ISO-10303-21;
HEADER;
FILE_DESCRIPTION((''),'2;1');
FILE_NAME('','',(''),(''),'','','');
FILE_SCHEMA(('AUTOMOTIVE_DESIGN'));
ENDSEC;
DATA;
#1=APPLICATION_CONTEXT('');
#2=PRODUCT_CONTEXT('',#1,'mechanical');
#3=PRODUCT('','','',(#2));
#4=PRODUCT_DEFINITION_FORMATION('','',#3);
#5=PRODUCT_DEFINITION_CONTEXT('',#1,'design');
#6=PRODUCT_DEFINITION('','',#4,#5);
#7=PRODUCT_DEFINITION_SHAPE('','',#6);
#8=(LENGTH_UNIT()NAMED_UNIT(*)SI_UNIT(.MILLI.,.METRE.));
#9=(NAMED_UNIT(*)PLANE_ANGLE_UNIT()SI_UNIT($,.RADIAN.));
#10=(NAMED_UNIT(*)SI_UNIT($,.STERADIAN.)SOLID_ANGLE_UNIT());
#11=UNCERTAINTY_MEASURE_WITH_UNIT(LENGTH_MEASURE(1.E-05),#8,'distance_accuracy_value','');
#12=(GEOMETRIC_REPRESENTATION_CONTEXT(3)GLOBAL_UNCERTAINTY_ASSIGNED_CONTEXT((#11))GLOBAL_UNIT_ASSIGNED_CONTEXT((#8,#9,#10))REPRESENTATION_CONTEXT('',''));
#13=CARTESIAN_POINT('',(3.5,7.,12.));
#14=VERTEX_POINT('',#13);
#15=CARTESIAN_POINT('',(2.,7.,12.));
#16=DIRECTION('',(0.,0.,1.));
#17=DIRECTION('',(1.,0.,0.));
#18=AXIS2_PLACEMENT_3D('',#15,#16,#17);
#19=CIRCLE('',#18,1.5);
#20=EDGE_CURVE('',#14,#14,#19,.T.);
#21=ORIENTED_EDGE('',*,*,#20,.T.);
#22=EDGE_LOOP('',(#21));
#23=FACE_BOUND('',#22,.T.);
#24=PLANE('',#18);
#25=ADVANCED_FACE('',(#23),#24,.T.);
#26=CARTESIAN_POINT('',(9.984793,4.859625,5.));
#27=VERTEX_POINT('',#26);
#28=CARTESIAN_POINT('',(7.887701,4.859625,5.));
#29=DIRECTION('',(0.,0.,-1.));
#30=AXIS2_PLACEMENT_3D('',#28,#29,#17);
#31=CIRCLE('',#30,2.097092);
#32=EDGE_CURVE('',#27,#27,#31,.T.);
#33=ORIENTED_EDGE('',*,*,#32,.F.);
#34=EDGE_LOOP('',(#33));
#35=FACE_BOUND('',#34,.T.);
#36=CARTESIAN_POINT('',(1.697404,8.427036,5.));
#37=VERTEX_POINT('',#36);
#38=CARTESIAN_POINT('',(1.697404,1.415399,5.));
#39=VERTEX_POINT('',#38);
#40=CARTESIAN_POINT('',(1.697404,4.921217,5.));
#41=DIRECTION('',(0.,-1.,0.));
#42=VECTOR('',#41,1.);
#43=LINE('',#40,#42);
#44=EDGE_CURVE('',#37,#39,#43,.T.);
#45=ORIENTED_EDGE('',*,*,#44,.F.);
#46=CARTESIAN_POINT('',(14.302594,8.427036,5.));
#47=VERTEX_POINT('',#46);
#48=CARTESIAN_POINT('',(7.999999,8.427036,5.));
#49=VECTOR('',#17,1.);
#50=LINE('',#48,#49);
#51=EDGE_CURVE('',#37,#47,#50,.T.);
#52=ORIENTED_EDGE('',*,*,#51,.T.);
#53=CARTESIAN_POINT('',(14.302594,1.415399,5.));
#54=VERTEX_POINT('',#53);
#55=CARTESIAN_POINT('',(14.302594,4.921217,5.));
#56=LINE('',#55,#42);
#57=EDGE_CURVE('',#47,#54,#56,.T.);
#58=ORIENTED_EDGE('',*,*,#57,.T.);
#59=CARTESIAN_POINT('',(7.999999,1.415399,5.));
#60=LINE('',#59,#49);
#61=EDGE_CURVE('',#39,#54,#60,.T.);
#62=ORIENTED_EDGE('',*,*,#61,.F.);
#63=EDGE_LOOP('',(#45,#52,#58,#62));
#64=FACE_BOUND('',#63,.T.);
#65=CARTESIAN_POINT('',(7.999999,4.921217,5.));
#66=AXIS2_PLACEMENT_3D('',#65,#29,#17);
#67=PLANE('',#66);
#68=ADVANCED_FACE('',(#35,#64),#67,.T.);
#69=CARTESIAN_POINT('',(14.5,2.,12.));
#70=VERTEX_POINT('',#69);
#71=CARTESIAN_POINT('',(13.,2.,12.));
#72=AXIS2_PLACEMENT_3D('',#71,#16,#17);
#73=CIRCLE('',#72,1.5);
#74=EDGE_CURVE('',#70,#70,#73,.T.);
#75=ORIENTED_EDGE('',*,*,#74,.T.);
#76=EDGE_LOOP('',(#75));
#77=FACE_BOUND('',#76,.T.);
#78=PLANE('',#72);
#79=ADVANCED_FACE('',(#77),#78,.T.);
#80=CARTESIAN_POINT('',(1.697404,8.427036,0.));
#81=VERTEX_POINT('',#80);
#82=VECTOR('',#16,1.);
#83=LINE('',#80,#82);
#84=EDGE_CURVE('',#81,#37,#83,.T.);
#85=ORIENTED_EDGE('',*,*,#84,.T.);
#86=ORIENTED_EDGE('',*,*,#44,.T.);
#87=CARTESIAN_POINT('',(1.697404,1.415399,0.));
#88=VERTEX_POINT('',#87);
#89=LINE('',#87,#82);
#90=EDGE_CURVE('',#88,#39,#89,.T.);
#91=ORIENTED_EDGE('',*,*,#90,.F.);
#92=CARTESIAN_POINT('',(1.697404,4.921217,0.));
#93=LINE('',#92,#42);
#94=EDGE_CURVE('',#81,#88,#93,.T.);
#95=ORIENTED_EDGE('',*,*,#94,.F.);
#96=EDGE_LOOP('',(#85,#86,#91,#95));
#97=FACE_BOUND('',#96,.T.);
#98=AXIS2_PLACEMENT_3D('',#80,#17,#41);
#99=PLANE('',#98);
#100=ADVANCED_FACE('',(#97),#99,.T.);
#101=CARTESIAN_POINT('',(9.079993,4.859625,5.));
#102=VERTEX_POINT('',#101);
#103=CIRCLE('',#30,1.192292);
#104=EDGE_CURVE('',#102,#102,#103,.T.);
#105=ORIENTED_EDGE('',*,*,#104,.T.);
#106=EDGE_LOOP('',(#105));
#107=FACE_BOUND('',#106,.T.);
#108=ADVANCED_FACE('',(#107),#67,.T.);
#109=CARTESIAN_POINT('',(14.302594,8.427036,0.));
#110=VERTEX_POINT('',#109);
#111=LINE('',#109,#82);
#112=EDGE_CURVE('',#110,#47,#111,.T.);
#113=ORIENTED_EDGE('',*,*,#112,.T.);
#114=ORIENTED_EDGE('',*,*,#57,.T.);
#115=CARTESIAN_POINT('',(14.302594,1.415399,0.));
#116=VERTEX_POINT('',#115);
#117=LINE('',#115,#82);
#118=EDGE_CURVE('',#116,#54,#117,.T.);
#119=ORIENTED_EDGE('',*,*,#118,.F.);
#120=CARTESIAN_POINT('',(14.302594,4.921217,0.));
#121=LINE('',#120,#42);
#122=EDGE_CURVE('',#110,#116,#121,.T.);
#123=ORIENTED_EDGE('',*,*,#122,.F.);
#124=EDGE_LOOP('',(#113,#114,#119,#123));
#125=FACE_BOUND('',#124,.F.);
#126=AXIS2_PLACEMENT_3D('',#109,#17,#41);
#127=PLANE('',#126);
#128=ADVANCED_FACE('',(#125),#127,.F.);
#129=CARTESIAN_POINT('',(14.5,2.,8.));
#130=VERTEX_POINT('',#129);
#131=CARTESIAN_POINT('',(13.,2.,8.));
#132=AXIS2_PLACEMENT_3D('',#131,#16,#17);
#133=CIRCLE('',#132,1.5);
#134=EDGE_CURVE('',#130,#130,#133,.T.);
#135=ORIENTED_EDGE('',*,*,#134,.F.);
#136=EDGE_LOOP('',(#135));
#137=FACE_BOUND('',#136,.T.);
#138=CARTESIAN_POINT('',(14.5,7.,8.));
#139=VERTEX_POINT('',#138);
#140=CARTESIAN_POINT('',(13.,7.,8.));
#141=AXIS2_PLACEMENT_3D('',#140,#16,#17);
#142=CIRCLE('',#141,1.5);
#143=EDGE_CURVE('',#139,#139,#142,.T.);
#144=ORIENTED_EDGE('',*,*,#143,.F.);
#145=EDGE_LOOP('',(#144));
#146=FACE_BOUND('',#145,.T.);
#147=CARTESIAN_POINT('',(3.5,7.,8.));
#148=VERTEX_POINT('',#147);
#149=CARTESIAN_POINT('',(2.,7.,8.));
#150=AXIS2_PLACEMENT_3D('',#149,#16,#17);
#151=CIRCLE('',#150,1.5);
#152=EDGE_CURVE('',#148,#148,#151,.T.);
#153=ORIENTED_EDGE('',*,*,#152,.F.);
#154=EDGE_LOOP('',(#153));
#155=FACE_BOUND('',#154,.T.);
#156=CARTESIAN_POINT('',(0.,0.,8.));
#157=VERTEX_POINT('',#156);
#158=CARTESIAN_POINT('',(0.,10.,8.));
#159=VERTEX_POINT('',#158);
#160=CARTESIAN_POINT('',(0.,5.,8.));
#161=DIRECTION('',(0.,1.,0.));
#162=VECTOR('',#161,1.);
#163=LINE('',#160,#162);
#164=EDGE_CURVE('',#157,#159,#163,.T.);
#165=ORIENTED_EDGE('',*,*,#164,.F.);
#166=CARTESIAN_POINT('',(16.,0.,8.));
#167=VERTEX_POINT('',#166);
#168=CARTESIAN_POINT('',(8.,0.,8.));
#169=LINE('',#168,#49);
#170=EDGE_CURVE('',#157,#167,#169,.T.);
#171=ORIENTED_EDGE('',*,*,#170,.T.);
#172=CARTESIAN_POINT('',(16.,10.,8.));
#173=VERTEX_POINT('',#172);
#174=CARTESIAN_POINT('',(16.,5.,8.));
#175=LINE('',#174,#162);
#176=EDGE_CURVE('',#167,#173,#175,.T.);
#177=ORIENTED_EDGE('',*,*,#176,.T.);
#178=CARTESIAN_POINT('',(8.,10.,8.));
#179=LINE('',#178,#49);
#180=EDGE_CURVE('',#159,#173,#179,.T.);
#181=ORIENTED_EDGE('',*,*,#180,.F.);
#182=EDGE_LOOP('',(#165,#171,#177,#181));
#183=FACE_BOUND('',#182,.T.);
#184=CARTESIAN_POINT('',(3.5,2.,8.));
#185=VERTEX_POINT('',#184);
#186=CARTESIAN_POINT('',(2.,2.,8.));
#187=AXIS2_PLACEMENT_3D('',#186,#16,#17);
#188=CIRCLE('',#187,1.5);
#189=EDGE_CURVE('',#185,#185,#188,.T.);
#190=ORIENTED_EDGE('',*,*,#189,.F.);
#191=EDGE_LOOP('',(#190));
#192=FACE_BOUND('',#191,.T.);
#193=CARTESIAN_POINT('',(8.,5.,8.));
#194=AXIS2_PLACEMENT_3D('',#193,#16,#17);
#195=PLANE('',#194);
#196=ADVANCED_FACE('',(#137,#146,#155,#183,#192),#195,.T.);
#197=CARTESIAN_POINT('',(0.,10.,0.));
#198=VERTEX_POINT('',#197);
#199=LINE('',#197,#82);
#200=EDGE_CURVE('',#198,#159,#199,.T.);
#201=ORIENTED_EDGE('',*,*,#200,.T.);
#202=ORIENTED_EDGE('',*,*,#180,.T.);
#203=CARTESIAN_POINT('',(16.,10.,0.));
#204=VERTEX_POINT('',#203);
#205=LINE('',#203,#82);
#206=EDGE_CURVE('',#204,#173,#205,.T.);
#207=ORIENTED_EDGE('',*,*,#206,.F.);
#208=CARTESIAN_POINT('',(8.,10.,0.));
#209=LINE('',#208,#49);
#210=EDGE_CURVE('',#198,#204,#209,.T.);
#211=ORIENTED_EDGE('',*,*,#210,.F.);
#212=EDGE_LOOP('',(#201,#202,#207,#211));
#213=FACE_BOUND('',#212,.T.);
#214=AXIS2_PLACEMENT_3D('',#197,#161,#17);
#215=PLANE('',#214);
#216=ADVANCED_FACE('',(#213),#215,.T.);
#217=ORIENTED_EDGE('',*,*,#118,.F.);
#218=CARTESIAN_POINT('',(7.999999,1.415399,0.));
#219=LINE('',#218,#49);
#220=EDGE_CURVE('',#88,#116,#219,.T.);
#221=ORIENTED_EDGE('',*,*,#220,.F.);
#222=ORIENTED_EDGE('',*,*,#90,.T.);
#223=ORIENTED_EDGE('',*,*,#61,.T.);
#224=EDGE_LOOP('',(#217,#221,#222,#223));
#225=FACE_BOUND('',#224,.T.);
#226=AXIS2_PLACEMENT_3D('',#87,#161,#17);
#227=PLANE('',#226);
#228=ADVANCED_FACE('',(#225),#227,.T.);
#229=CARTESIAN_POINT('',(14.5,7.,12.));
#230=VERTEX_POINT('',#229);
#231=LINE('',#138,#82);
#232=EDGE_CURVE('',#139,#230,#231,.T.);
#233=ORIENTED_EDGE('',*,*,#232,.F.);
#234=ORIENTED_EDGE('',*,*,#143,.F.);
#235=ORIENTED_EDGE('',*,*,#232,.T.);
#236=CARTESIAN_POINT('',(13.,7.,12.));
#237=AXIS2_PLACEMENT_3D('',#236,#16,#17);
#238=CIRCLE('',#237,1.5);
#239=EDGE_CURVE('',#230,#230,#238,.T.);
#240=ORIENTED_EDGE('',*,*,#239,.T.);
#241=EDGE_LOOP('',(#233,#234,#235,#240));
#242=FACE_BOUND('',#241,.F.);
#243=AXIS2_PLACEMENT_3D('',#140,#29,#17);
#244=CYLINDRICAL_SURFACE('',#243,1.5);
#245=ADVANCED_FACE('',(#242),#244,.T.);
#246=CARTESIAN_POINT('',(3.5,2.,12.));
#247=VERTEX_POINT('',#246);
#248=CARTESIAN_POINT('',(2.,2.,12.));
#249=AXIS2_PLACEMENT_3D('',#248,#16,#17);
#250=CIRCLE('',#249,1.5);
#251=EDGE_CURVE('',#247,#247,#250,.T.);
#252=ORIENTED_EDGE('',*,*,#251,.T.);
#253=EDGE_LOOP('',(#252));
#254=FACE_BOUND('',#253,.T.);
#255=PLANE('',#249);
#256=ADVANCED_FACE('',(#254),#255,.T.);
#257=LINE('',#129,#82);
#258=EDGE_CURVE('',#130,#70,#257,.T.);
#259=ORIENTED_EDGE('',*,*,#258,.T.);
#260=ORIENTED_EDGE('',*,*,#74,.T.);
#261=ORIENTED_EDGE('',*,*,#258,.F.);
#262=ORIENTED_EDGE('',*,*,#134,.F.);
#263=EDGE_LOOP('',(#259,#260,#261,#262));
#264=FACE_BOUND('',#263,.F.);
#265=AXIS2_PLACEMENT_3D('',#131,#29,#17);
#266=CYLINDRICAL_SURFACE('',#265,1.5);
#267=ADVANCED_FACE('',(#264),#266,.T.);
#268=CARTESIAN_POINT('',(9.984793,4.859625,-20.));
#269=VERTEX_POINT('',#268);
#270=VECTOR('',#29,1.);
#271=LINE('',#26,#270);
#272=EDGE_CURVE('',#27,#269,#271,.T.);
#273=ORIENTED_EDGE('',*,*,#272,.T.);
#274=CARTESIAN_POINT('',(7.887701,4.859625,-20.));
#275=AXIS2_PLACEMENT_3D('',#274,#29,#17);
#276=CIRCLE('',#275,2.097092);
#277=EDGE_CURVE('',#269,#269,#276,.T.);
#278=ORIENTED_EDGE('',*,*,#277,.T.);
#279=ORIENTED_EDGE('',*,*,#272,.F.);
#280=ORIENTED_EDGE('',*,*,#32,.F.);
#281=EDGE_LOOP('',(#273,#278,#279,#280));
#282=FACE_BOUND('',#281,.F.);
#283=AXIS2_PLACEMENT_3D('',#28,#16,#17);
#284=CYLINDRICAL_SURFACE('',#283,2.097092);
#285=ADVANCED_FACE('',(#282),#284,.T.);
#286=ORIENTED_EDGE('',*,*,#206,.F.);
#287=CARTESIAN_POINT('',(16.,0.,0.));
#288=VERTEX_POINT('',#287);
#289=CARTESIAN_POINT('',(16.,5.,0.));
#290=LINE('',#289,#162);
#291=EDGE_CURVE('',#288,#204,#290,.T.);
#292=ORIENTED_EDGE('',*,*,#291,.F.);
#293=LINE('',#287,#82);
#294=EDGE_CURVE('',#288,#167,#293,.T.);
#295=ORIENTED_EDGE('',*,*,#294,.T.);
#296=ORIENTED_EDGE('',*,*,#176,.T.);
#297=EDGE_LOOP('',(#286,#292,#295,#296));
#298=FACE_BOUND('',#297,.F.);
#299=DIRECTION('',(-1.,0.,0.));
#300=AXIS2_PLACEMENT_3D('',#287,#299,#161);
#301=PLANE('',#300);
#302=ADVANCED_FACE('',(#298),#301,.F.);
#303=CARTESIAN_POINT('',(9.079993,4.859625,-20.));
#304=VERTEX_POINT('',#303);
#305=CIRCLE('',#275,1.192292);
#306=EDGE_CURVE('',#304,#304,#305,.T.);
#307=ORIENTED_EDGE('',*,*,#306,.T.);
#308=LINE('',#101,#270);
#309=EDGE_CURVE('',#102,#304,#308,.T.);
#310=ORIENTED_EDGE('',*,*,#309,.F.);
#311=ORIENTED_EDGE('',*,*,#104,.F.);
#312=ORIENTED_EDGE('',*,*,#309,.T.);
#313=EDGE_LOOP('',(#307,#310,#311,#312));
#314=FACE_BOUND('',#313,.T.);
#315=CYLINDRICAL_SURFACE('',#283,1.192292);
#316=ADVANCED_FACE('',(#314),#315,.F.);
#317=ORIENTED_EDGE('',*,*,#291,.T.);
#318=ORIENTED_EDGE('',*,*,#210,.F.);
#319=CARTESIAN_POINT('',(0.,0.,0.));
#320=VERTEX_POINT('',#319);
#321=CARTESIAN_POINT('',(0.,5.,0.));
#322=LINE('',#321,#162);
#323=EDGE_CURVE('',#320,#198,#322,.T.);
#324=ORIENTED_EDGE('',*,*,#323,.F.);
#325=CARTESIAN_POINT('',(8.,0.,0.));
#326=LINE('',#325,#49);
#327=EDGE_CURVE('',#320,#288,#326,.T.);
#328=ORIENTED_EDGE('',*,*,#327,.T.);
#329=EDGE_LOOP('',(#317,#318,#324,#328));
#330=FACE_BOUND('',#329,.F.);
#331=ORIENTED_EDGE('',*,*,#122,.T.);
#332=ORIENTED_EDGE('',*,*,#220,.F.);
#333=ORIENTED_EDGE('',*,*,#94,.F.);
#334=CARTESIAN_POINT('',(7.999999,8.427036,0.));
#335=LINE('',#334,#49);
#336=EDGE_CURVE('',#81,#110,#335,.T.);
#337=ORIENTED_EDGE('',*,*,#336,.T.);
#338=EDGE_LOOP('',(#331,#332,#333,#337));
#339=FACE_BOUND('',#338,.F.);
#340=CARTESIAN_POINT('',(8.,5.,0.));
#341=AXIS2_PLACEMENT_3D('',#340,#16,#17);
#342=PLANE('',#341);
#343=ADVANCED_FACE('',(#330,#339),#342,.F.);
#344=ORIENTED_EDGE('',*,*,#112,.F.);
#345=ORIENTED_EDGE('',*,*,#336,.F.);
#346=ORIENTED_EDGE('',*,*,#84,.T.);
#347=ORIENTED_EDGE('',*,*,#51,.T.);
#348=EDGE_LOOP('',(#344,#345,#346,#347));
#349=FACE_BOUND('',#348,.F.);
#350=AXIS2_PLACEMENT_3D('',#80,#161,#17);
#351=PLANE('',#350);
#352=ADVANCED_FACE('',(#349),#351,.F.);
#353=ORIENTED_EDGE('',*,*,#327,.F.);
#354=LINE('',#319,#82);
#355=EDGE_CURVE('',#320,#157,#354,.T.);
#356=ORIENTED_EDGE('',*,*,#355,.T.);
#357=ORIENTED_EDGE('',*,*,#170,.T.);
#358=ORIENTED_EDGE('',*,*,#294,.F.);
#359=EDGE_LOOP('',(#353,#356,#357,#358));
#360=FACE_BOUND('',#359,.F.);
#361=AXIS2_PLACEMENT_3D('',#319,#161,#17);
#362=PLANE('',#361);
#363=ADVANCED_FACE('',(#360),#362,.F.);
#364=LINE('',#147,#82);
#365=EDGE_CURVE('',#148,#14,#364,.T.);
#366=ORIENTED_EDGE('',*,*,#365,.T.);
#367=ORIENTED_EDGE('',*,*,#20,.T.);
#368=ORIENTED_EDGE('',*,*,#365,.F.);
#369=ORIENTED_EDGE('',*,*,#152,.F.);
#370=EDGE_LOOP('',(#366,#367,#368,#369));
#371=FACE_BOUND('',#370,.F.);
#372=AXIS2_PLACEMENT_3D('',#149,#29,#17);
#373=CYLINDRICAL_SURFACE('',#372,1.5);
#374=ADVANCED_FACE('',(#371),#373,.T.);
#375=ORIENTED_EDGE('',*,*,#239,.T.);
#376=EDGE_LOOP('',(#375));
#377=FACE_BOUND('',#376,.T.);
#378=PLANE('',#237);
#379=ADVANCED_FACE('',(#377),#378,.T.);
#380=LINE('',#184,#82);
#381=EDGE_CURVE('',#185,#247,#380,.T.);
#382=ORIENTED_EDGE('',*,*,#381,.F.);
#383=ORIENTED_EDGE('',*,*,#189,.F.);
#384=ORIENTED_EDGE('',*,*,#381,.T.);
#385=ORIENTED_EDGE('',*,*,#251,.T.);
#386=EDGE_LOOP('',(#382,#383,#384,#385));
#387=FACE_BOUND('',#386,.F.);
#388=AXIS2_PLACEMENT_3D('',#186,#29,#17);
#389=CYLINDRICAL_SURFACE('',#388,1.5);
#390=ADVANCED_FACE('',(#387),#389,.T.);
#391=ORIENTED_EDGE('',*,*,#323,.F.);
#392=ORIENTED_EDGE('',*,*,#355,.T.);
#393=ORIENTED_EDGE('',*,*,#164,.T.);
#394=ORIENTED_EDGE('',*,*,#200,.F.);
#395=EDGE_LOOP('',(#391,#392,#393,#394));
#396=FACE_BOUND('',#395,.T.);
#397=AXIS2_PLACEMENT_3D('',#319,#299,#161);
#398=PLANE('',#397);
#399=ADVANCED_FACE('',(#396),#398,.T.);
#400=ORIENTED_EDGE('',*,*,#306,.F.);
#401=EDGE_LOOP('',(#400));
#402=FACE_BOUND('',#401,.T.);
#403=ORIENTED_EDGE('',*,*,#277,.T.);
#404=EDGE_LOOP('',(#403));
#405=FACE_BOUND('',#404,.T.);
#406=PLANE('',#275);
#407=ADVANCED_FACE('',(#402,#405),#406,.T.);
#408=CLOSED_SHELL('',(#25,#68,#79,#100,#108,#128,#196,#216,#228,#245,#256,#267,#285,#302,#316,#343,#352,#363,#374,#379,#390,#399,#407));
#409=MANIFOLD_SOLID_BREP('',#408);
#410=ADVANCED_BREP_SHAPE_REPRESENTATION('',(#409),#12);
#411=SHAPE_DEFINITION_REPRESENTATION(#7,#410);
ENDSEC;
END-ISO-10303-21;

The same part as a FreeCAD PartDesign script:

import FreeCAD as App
import Part
import Sketcher
Q = App.Units.Quantity

doc = App.newDocument("Part")
body = doc.addObject("PartDesign::Body", "Body")

sketch1 = body.newObject("Sketcher::SketchObject", "Sketch")
sketch1.AttachmentSupport = (doc.getObject("XY_Plane"), [""])
sketch1.MapMode = "FlatFace"
sketch1.addGeometry([
    Part.LineSegment(App.Vector(0, 10, 0), App.Vector(0, 0, 0)),
    Part.LineSegment(App.Vector(0, 0, 0), App.Vector(16, 0, 0)),
    Part.LineSegment(App.Vector(16, 0, 0), App.Vector(16, 10, 0)),
    Part.LineSegment(App.Vector(16, 10, 0), App.Vector(0, 10, 0)),
], False)
sketch1.addConstraint([
    Sketcher.Constraint("Coincident", 0, 2, 1, 1),
    Sketcher.Constraint("Coincident", 1, 2, 2, 1),
    Sketcher.Constraint("Coincident", 2, 2, 3, 1),
    Sketcher.Constraint("Coincident", 3, 2, 0, 1),
    Sketcher.Constraint("Vertical", 0),
    Sketcher.Constraint("Horizontal", 1),
    Sketcher.Constraint("Vertical", 2),
    Sketcher.Constraint("Horizontal", 3),
    Sketcher.Constraint("Coincident", 0, 2, -1, 1),
    Sketcher.Constraint("DistanceX", 1, 1, 1, 2, Q("16 mm")),
    Sketcher.Constraint("DistanceY", 0, 2, 0, 1, Q("10 mm")),
])
pad1 = body.newObject("PartDesign::Pad", "Pad")
pad1.Profile = sketch1
pad1.Length = 8

sketch2 = body.newObject("Sketcher::SketchObject", "Sketch001")
sketch2.AttachmentSupport = (doc.getObject("XY_Plane"), [""])
sketch2.MapMode = "FlatFace"
sketch2.AttachmentOffset = App.Placement(App.Vector(0, 0, 8), App.Rotation())
sketch2.addGeometry([
    Part.Circle(App.Vector(2, 2, 0), App.Vector(0, 0, 1), 1.5),
    Part.Circle(App.Vector(13, 2, 0), App.Vector(0, 0, 1), 1.5),
    Part.Circle(App.Vector(13, 7, 0), App.Vector(0, 0, 1), 1.5),
    Part.Circle(App.Vector(2, 7, 0), App.Vector(0, 0, 1), 1.5),
], False)
sketch2.addConstraint([
    Sketcher.Constraint("Equal", 0, 1),
    Sketcher.Constraint("Equal", 1, 2),
    Sketcher.Constraint("Equal", 2, 3),
    Sketcher.Constraint("Horizontal", 0, 3, 1, 3),
    Sketcher.Constraint("Horizontal", 2, 3, 3, 3),
    Sketcher.Constraint("Vertical", 1, 3, 2, 3),
    Sketcher.Constraint("Vertical", 0, 3, 3, 3),
    Sketcher.Constraint("Diameter", 0, Q("3 mm")),
    Sketcher.Constraint("DistanceX", -1, 1, 0, 3, Q("2 mm")),
    Sketcher.Constraint("DistanceY", -1, 1, 0, 3, Q("2 mm")),
    Sketcher.Constraint("DistanceX", -1, 1, 1, 3, Q("13 mm")),
    Sketcher.Constraint("DistanceY", -1, 1, 2, 3, Q("7 mm")),
])
pad2 = body.newObject("PartDesign::Pad", "Pad001")
pad2.Profile = sketch2
pad2.Length = 4

sketch3 = body.newObject("Sketcher::SketchObject", "Sketch002")
sketch3.AttachmentSupport = (doc.getObject("XY_Plane"), [""])
sketch3.MapMode = "FlatFace"
sketch3.addGeometry([
    Part.LineSegment(App.Vector(2, 1, 0), App.Vector(2, 8, 0)),
    Part.LineSegment(App.Vector(2, 8, 0), App.Vector(14, 8, 0)),
    Part.LineSegment(App.Vector(14, 8, 0), App.Vector(14, 1, 0)),
    Part.LineSegment(App.Vector(14, 1, 0), App.Vector(2, 1, 0)),
], False)
sketch3.addConstraint([
    Sketcher.Constraint("Coincident", 0, 2, 1, 1),
    Sketcher.Constraint("Coincident", 1, 2, 2, 1),
    Sketcher.Constraint("Coincident", 2, 2, 3, 1),
    Sketcher.Constraint("Coincident", 3, 2, 0, 1),
    Sketcher.Constraint("Vertical", 0),
    Sketcher.Constraint("Horizontal", 1),
    Sketcher.Constraint("Vertical", 2),
    Sketcher.Constraint("Horizontal", 3),
    Sketcher.Constraint("DistanceX", 1, 1, 1, 2, Q("12.605189 mm")),
    Sketcher.Constraint("DistanceY", -1, 1, 2, 2, Q("1.415399 mm")),
    Sketcher.Constraint("DistanceY", 0, 1, 0, 2, Q("7.011637 mm")),
    Sketcher.Constraint("DistanceX", -1, 1, 0, 2, Q("1.697404 mm")),
])
pocket1 = body.newObject("PartDesign::Pocket", "Pocket")
pocket1.Profile = sketch3
pocket1.Length = 5
pocket1.Reversed = True

sketch4 = body.newObject("Sketcher::SketchObject", "Sketch003")
sketch4.AttachmentSupport = (doc.getObject("XY_Plane"), [""])
sketch4.MapMode = "FlatFace"
sketch4.AttachmentOffset = App.Placement(App.Vector(0, 0, 5), App.Rotation())
sketch4.addGeometry([
    Part.Circle(App.Vector(7.9, 4.9, 0), App.Vector(0, 0, 1), 2.1),
    Part.Circle(App.Vector(7.9, 4.9, 0), App.Vector(0, 0, 1), 1.2),
], False)
sketch4.addConstraint([
    Sketcher.Constraint("Coincident", 1, 3, 0, 3),
    Sketcher.Constraint("Diameter", 0, Q("4.194184 mm")),
    Sketcher.Constraint("Diameter", 1, Q("2.384584 mm")),
    Sketcher.Constraint("DistanceX", -1, 1, 0, 3, Q("7.887701 mm")),
    Sketcher.Constraint("DistanceY", -1, 1, 0, 3, Q("4.859625 mm")),
])
pad3 = body.newObject("PartDesign::Pad", "Pad002")
pad3.Profile = sketch4
pad3.Length = 25
pad3.Reversed = True

doc.recompute()
